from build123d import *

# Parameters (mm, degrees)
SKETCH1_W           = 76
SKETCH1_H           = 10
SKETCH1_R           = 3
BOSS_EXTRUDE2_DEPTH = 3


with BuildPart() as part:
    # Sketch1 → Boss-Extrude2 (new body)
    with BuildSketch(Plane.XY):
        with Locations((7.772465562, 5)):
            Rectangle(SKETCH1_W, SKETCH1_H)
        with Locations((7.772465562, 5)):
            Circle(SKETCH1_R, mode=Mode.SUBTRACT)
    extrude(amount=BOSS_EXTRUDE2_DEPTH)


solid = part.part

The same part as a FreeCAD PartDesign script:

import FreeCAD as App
import Part
import Sketcher
from FreeCAD import Vector

doc = App.newDocument("Part")
body = doc.addObject("PartDesign::Body", "Body")

# Sketch on XY plane
sketch1 = body.newObject("Sketcher::SketchObject", "Sketch")
sketch1.AttachmentSupport = (doc.getObject("XY_Plane"), [""])
sketch1.MapMode = "FlatFace"
sketch1.addGeometry([
    Part.LineSegment(Vector(-30.2, 10, 0), Vector(-30.2, 0, 0)),  # 0
    Part.LineSegment(Vector(-30.2, 0, 0), Vector(45.8, 0, 0)),  # 1
    Part.LineSegment(Vector(45.8, 0, 0), Vector(45.8, 10, 0)),  # 2
    Part.LineSegment(Vector(45.8, 10, 0), Vector(-30.2, 10, 0)),  # 3
    Part.Circle(Vector(7.8, 5, 0), Vector(0, 0, 1), 3),  # 4
], False)
sketch1.addConstraint([
    Sketcher.Constraint("Coincident", 0, 2, 1, 1),
    Sketcher.Constraint("Coincident", 1, 2, 2, 1),
    Sketcher.Constraint("Coincident", 2, 2, 3, 1),
    Sketcher.Constraint("Coincident", 3, 2, 0, 1),
    Sketcher.Constraint("Vertical", 0),
    Sketcher.Constraint("Horizontal", 1),
    Sketcher.Constraint("Vertical", 2),
    Sketcher.Constraint("Horizontal", 3),
    Sketcher.Constraint("PointOnObject", 0, 2, -1),
    Sketcher.Constraint("Diameter", 4, 6.0),
    Sketcher.Constraint("DistanceX", 1, 1, 1, 2, 76.0),
    Sketcher.Constraint("DistanceY", 0, 2, 0, 1, 10.0),
    Sketcher.Constraint("DistanceY", -1, 1, 4, 3, 5.0),
    Sketcher.Constraint("DistanceX", 0, 2, 4, 3, 38.0),
    Sketcher.Constraint("DistanceX", -1, 1, 4, 3, 7.772466),
])
pad1 = body.newObject("PartDesign::Pad", "Pad")
pad1.Profile = sketch1
pad1.Length = 3

doc.recompute()
